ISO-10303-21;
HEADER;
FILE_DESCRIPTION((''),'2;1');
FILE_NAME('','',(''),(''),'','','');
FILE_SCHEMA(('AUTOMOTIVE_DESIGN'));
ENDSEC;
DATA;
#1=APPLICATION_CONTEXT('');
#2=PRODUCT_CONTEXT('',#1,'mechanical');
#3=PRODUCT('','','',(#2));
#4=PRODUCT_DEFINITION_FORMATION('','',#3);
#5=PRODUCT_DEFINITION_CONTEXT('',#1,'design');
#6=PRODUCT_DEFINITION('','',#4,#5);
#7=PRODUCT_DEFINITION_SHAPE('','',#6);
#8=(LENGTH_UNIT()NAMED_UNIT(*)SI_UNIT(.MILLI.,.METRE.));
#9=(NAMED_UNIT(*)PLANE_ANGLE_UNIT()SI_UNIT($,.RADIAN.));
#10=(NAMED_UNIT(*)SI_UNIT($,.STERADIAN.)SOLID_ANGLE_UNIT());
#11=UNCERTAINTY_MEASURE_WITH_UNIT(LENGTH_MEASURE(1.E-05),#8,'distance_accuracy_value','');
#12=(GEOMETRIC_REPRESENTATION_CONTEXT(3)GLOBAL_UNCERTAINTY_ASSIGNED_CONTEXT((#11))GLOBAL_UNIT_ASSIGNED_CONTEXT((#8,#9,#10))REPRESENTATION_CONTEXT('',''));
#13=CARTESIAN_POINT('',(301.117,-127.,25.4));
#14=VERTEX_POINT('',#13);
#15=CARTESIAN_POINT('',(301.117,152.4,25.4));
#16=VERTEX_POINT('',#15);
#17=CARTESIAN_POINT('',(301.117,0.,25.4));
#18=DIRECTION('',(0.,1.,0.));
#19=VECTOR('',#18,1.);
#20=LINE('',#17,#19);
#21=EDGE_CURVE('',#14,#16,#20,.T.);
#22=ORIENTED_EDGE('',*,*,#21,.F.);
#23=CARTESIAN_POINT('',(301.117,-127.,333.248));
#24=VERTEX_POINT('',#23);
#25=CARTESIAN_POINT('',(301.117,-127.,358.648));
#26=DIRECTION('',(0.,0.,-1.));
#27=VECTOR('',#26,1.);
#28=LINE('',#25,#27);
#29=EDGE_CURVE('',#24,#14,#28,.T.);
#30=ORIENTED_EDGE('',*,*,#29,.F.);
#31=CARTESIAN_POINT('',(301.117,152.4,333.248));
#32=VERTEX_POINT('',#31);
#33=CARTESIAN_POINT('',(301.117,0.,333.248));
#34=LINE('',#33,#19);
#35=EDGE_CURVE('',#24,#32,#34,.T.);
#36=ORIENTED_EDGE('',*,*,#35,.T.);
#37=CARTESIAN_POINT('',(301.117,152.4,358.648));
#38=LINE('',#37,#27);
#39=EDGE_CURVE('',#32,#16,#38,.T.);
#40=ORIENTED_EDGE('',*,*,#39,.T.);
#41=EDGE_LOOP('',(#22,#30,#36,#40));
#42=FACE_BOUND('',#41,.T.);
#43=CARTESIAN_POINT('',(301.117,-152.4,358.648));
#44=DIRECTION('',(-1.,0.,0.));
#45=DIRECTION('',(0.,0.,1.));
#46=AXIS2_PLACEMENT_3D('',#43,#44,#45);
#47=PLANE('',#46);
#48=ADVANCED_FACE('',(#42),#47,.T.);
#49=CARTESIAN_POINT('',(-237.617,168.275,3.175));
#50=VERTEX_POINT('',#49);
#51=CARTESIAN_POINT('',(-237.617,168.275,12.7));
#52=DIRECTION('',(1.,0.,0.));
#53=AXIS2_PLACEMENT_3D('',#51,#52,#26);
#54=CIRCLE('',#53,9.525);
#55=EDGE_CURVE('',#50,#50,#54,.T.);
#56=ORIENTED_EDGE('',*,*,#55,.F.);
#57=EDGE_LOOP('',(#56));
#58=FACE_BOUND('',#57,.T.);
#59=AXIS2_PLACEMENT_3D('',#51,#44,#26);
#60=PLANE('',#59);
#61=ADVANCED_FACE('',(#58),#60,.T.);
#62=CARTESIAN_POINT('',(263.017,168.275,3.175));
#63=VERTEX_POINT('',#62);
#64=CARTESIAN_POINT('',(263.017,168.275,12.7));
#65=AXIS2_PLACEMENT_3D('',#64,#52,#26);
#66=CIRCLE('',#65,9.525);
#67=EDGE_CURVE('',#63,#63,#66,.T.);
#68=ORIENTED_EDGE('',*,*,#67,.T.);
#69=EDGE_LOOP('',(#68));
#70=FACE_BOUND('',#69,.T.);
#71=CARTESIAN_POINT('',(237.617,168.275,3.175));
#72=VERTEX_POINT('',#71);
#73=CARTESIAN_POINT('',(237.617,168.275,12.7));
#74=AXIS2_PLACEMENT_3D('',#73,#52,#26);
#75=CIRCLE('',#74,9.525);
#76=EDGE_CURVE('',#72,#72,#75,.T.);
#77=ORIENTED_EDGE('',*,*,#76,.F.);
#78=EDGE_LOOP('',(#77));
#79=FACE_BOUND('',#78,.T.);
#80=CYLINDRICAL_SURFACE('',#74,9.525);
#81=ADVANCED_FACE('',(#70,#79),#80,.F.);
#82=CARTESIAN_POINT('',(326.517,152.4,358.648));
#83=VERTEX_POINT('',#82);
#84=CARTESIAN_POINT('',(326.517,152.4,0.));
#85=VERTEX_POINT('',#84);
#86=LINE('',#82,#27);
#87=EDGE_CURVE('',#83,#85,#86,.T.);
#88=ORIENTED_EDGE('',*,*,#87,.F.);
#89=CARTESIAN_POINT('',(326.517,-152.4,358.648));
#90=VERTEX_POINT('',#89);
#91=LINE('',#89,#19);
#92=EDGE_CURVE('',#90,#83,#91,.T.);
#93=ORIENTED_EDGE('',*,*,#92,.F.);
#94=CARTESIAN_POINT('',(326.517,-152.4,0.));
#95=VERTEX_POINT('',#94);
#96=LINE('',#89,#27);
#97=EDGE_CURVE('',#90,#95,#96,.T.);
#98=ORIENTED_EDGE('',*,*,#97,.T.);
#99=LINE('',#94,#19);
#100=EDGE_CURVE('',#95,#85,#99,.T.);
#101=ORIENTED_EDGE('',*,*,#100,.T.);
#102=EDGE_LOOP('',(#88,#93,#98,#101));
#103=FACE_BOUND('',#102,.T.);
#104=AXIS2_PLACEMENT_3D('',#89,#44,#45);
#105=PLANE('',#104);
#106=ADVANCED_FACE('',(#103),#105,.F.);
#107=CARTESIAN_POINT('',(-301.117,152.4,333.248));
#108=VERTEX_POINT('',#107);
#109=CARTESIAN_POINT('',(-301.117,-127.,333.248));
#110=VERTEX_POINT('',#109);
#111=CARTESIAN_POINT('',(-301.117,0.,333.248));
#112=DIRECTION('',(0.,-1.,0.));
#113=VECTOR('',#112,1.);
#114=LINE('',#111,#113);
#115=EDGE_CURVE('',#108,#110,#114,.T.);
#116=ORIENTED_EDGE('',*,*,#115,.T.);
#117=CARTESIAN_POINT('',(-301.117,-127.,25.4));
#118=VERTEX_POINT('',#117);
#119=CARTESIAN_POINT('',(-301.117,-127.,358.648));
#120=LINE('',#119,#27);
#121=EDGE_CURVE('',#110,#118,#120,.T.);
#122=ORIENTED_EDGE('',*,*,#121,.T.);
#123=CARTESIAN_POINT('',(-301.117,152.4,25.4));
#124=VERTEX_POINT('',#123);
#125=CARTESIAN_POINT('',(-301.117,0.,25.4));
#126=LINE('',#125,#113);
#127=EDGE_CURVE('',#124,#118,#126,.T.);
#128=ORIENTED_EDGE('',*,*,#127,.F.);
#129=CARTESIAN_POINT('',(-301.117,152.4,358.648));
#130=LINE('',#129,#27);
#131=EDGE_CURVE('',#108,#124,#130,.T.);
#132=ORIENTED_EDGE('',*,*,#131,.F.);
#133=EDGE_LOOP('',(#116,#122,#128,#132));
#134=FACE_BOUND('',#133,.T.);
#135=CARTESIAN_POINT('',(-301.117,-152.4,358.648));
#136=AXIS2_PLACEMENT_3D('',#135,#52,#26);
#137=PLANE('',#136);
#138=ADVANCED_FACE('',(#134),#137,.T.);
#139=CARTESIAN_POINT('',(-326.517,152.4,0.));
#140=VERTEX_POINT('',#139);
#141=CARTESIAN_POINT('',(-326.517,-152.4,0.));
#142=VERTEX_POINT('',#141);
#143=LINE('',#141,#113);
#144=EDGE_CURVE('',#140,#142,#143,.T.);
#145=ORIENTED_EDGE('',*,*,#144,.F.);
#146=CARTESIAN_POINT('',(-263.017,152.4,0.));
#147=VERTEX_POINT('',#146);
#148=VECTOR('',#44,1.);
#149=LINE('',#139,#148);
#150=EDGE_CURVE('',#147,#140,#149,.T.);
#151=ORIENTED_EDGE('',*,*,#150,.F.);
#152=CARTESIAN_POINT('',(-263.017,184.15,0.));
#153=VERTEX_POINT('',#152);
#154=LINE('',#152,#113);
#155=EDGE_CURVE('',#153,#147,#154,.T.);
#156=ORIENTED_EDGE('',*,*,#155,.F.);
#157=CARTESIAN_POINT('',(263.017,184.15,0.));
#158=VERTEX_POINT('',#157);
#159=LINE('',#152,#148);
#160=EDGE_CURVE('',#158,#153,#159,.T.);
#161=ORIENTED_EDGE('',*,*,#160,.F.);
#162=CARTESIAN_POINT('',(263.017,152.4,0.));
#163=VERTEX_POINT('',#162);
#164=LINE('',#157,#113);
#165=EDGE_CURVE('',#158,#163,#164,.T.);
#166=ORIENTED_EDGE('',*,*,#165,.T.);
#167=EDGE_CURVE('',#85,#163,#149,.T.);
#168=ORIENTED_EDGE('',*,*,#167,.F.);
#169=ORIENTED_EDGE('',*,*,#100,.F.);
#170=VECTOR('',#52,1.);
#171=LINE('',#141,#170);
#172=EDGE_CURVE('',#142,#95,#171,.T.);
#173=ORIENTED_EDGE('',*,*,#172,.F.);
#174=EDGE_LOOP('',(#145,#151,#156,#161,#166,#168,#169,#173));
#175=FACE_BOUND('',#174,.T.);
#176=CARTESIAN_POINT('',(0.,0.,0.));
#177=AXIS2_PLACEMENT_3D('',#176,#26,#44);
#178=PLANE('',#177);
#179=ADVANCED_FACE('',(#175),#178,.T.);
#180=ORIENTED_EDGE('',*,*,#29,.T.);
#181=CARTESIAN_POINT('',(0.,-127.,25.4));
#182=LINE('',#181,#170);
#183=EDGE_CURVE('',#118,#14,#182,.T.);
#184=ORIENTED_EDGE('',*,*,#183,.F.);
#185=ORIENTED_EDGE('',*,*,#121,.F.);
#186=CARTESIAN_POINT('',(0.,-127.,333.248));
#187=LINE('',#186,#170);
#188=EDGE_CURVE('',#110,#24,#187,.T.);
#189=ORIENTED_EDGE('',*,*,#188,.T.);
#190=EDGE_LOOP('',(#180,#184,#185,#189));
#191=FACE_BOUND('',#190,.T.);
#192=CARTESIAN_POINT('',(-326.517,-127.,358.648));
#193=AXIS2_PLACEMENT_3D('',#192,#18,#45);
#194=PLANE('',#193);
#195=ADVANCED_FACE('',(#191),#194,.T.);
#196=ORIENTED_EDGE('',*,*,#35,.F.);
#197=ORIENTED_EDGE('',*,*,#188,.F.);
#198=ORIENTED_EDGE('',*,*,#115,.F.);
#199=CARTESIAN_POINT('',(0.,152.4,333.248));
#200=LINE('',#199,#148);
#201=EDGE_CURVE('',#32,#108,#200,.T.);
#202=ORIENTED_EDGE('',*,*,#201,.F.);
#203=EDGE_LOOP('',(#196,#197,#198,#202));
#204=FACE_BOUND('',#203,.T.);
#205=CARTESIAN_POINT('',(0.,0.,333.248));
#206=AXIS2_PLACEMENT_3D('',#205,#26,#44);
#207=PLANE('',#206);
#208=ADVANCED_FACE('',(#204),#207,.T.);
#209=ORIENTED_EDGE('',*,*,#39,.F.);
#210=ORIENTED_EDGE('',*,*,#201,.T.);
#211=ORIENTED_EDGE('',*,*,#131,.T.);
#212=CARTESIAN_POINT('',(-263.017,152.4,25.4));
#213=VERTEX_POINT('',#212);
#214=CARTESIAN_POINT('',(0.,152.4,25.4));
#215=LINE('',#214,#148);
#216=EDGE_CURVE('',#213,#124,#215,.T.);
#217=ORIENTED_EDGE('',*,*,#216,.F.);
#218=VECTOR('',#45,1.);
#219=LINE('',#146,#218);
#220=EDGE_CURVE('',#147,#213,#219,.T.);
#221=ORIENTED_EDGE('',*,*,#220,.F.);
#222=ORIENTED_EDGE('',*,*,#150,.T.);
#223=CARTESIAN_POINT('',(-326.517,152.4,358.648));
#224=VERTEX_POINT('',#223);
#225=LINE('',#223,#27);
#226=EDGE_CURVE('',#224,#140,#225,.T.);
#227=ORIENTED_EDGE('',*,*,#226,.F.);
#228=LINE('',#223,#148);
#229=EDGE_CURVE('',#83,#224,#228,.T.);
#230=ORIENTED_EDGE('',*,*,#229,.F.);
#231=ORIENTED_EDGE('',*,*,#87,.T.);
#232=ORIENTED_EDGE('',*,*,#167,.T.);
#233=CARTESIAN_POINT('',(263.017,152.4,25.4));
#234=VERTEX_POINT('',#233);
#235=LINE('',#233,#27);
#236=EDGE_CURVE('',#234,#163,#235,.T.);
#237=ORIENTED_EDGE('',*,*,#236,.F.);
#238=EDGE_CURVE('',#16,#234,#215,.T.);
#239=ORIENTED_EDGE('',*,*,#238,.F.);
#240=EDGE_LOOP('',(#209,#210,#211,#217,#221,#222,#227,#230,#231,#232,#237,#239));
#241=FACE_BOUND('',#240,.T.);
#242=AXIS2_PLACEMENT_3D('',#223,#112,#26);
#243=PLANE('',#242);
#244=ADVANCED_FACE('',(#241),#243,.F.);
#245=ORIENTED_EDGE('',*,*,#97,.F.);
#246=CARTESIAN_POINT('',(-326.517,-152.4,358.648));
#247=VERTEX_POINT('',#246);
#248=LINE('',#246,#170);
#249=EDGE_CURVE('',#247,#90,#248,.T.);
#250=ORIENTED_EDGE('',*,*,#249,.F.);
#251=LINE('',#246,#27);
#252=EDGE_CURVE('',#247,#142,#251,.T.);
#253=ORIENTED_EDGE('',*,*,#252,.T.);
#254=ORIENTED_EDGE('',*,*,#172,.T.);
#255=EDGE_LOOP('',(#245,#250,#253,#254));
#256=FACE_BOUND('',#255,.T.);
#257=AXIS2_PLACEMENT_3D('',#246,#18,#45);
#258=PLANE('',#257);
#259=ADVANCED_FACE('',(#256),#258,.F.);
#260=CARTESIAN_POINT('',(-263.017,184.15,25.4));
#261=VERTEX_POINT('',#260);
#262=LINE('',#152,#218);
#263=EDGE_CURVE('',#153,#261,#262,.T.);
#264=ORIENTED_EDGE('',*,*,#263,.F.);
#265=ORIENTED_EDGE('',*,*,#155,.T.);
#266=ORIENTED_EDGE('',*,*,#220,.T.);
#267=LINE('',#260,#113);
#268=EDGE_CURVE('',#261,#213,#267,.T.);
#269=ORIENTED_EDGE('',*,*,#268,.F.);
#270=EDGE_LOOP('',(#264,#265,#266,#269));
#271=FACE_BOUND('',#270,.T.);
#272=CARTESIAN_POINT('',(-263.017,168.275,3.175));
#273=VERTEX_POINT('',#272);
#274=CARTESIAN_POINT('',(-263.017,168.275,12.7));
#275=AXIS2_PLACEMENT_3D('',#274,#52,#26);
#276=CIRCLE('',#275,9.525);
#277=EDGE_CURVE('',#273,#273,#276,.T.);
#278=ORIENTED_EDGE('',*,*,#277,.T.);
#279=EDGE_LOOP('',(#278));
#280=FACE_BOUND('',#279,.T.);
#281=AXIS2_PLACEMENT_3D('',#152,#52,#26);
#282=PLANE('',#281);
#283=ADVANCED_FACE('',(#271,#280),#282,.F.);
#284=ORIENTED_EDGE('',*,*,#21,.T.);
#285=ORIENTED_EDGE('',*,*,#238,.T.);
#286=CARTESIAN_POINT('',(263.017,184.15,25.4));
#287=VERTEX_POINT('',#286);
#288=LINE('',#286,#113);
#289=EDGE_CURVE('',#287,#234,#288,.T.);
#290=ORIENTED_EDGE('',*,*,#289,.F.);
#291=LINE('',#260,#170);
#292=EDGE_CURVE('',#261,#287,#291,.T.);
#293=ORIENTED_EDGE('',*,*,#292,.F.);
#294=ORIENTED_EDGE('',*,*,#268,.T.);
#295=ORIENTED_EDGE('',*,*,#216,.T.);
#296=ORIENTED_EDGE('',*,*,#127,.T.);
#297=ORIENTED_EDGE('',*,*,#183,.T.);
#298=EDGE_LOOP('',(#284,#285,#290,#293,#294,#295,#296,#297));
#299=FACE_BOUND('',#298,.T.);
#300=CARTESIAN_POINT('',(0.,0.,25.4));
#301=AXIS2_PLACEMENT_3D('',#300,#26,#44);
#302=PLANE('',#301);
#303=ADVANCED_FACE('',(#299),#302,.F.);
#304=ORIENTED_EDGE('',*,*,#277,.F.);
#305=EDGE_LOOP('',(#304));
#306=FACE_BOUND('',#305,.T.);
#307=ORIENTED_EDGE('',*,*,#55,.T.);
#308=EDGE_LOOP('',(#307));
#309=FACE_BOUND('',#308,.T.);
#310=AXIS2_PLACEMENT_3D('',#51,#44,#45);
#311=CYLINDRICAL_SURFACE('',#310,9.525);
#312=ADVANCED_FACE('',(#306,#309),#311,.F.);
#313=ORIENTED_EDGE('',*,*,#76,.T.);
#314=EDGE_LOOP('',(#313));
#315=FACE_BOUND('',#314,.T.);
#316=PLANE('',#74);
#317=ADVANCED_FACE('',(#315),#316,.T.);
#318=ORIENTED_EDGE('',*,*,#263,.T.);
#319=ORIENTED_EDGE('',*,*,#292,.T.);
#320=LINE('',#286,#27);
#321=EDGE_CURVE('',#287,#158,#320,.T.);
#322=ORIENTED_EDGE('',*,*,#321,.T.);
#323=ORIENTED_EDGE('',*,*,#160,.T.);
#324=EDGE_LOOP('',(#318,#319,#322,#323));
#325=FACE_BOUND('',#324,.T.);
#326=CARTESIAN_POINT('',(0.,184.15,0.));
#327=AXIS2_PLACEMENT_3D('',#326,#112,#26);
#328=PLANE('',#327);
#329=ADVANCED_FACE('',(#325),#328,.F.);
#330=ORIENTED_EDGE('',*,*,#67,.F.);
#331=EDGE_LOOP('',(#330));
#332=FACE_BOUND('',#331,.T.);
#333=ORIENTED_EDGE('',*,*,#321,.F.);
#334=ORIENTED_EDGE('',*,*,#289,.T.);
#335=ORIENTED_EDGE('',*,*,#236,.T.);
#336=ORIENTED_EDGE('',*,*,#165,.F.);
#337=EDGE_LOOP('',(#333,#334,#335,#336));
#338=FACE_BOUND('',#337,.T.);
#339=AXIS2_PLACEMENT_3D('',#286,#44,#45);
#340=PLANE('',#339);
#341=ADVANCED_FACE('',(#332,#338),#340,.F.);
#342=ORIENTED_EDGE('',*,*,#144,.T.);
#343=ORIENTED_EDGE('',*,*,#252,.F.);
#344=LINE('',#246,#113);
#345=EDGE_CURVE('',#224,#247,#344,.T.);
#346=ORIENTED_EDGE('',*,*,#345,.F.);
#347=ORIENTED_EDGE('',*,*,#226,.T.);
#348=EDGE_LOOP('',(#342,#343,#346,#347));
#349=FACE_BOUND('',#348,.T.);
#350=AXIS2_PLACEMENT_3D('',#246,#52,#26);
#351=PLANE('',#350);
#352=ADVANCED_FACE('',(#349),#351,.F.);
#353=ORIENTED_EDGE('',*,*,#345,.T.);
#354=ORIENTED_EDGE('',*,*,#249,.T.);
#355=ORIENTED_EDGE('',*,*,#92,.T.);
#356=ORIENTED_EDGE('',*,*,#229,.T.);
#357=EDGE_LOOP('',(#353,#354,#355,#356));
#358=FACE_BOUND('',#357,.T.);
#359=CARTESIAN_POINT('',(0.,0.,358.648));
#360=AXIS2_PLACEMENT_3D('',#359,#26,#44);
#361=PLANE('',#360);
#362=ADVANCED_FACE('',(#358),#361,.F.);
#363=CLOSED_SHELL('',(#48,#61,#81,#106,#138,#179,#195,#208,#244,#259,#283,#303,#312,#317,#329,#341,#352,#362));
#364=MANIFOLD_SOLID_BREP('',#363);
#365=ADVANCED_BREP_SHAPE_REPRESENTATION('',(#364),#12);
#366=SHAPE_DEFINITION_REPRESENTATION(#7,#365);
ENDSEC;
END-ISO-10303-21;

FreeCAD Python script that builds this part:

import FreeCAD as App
import Part
import Sketcher
from FreeCAD import Vector
Q = App.Units.Quantity


def faces_at(feature, points):
    """Names of the faces that lie closest to the given points."""
    faces = feature.Shape.Faces
    near = lambda p: min(range(len(faces)), key=lambda i: faces[i].distToShape(Part.Vertex(*p))[0])
    return sorted({f"Face{near(p) + 1}" for p in points})

doc = App.newDocument("Part")
body = doc.addObject("PartDesign::Body", "Body")

sketch1 = body.newObject("Sketcher::SketchObject", "Sketch")
sketch1.AttachmentSupport = (doc.getObject("XY_Plane"), [""])
sketch1.MapMode = "FlatFace"
sketch1.addGeometry([
    Part.LineSegment(Vector(-326.517, 152.4, 0), Vector(-326.517, -152.4, 0)),
    Part.LineSegment(Vector(-326.517, -152.4, 0), Vector(326.517, -152.4, 0)),
    Part.LineSegment(Vector(326.517, -152.4, 0), Vector(326.517, 152.4, 0)),
    Part.LineSegment(Vector(326.517, 152.4, 0), Vector(-326.517, 152.4, 0)),
], False)
sketch1.addConstraint([
    Sketcher.Constraint("Coincident", 0, 2, 1, 1),
    Sketcher.Constraint("Coincident", 1, 2, 2, 1),
    Sketcher.Constraint("Coincident", 2, 2, 3, 1),
    Sketcher.Constraint("Coincident", 3, 2, 0, 1),
    Sketcher.Constraint("Vertical", 0),
    Sketcher.Constraint("Horizontal", 1),
    Sketcher.Constraint("Vertical", 2),
    Sketcher.Constraint("Horizontal", 3),
    Sketcher.Constraint("Symmetric", 0, 2, 2, 2, -1, 1),
    Sketcher.Constraint("DistanceY", 0, 2, 0, 1, Q("12 in")),
    Sketcher.Constraint("DistanceX", 1, 1, 1, 2, Q("25.71 in")),
])
pad1 = body.newObject("PartDesign::Pad", "Pad")
pad1.Profile = sketch1
pad1.Length = Q("14.12 in")
doc.recompute()

thickness = body.newObject("PartDesign::Thickness", "Thickness")
thickness.Base = (pad1, faces_at(pad1, [(0, 152.4, 179.324)]))
thickness.Value = Q("1 in")
thickness.Reversed = True
thickness.Join = "Intersection"

sketch2 = body.newObject("Sketcher::SketchObject", "Sketch001")
sketch2.AttachmentSupport = (doc.getObject("XZ_Plane"), [""])
sketch2.MapMode = "FlatFace"
sketch2.AttachmentOffset = App.Placement(Vector(0, 0, -6 * 25.4), App.Rotation())
sketch2.addGeometry([
    Part.LineSegment(Vector(-263.017, 0, 0), Vector(-263.017, 25.4, 0)),
    Part.LineSegment(Vector(-263.017, 25.4, 0), Vector(263.017, 25.4, 0)),
    Part.LineSegment(Vector(263.017, 25.4, 0), Vector(263.017, 0, 0)),
    Part.LineSegment(Vector(263.017, 0, 0), Vector(-263.017, 0, 0)),
], False)
sketch2.addConstraint([
    Sketcher.Constraint("Coincident", 0, 2, 1, 1),
    Sketcher.Constraint("Coincident", 1, 2, 2, 1),
    Sketcher.Constraint("Coincident", 2, 2, 3, 1),
    Sketcher.Constraint("Coincident", 3, 2, 0, 1),
    Sketcher.Constraint("Vertical", 0),
    Sketcher.Constraint("Horizontal", 1),
    Sketcher.Constraint("Vertical", 2),
    Sketcher.Constraint("Horizontal", 3),
    Sketcher.Constraint("Symmetric", 2, 2, 3, 2, -1, 1),
    Sketcher.Constraint("DistanceY", 0, 1, 0, 2, Q("1 in")),
    Sketcher.Constraint("DistanceX", 1, 1, 1, 2, Q("20.71 in")),
])
pad2 = body.newObject("PartDesign::Pad", "Pad001")
pad2.Profile = sketch2
pad2.Length = Q("1.25 in")
pad2.Reversed = True

sketch3 = body.newObject("Sketcher::SketchObject", "Sketch002")
sketch3.AttachmentSupport = (doc.getObject("YZ_Plane"), [""])
sketch3.MapMode = "FlatFace"
sketch3.AttachmentOffset = App.Placement(Vector(0, 0, 10.355 * 25.4), App.Rotation())
sketch3.addGeometry(Part.Circle(Vector(168.275, 12.7, 0), Vector(0, 0, 1), 9.525), False)
sketch3.addConstraint([
    Sketcher.Constraint("Diameter", 0, Q("0.75 in")),
    Sketcher.Constraint("DistanceY", -1, 1, 0, 3, Q("0.5 in")),
    Sketcher.Constraint("DistanceX", -1, 1, 0, 3, Q("6.625 in")),
])
pocket1 = body.newObject("PartDesign::Pocket", "Pocket")
pocket1.Profile = sketch3
pocket1.Length = Q("1 in")
doc.recompute()

mirrored = body.newObject("PartDesign::Mirrored", "Mirrored")
mirrored.Originals = [pocket1]
mirrored.MirrorPlane = (doc.getObject("YZ_Plane"), [""])
body.Tip = mirrored

doc.recompute()
